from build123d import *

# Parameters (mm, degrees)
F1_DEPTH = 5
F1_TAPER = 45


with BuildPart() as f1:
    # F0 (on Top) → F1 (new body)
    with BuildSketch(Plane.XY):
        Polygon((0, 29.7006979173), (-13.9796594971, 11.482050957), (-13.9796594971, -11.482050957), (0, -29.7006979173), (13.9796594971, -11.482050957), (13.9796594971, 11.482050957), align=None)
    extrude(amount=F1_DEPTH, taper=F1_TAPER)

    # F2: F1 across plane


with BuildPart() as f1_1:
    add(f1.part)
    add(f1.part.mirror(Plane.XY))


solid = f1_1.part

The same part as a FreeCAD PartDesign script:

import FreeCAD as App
import Part
import Sketcher
Q = App.Units.Quantity

doc = App.newDocument("Part")
params = doc.addObject("Spreadsheet::Sheet", "Params")
for row, (alias, value) in enumerate([
    ("pad1_length", "5 mm"),
    ("pad1_taper", "-45 deg"),
], start=1):
    params.set(f"A{row}", alias)
    params.set(f"B{row}", "=" + value)
    params.setAlias(f"B{row}", alias)

body = doc.addObject("PartDesign::Body", "Body")

# Sketch on XY plane
sketch1 = body.newObject("Sketcher::SketchObject", "Sketch")
sketch1.AttachmentSupport = (doc.getObject("XY_Plane"), [""])
sketch1.MapMode = "FlatFace"
sketch1.addGeometry([
    Part.LineSegment(App.Vector(0, 30, 0), App.Vector(-14, 11, 0)),  # 0
    Part.LineSegment(App.Vector(-14, 11, 0), App.Vector(-14, -11, 0)),  # 1
    Part.LineSegment(App.Vector(-14, -11, 0), App.Vector(0, -30, 0)),  # 2
    Part.LineSegment(App.Vector(0, -30, 0), App.Vector(14, -11, 0)),  # 3
    Part.LineSegment(App.Vector(14, -11, 0), App.Vector(14, 11, 0)),  # 4
    Part.LineSegment(App.Vector(14, 11, 0), App.Vector(0, 30, 0)),  # 5
], False)
sketch1.addConstraint([
    Sketcher.Constraint("Coincident", 0, 2, 1, 1),
    Sketcher.Constraint("Coincident", 1, 2, 2, 1),
    Sketcher.Constraint("Coincident", 2, 2, 3, 1),
    Sketcher.Constraint("Coincident", 3, 2, 4, 1),
    Sketcher.Constraint("Coincident", 4, 2, 5, 1),
    Sketcher.Constraint("Coincident", 5, 2, 0, 1),
    Sketcher.Constraint("Vertical", 1),
    Sketcher.Constraint("Vertical", 4),
    Sketcher.Constraint("Symmetric", 0, 2, 3, 2, -1, 1),
    Sketcher.Constraint("Symmetric", 2, 2, 5, 2, -1, 1),
    Sketcher.Constraint("PointOnObject", 2, 2, -2),
    Sketcher.Constraint("Parallel", 2, 5),
    Sketcher.Constraint("Horizontal", 1, 2, 3, 2),
    Sketcher.Constraint("Angle", 0, Q("-127.5 deg")),
    Sketcher.Constraint("DistanceY", 1, 2, 1, 1, 22.964102),
    Sketcher.Constraint("Distance", 0, 22.964102),
])
pad1 = body.newObject("PartDesign::Pad", "Pad")
pad1.Profile = sketch1
pad1.setExpression("Length", "Params.pad1_length")
pad1.setExpression("TaperAngle", "Params.pad1_taper")
body2 = doc.addObject("PartDesign::Body", "Body001")
doc.recompute()

body2.BaseFeature = body
doc.recompute()

mirroring = doc.addObject("Part::Mirroring", "Mirroring")
mirroring.Source = body
mirroring.Base = App.Vector(0, 0, 0)
mirroring.Normal = App.Vector(0, 0, 1)
body3 = doc.addObject("PartDesign::Body", "Body002")
body3.BaseFeature = mirroring
boolean = body2.newObject("PartDesign::Boolean", "Boolean")
boolean.Type = "Fuse"
boolean.addObjects([body3])
doc.recompute()
mirroring.Visibility = False

doc.recompute()
